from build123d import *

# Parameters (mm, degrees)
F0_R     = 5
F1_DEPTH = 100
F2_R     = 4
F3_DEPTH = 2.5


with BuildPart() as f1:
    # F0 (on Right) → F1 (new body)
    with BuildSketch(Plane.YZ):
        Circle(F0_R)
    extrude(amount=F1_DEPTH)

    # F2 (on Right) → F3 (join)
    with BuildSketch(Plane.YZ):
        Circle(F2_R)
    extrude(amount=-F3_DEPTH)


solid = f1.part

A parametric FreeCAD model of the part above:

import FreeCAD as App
import Part
import Sketcher
from FreeCAD import Vector

doc = App.newDocument("Part")
body = doc.addObject("PartDesign::Body", "Body")

sketch1 = doc.addObject("Sketcher::SketchObject", "Sketch")
body.addObject(sketch1)
sketch1.AttachmentSupport = (doc.YZ_Plane, [""])
sketch1.MapMode = "FlatFace"
sketch1.addGeometry(Part.Circle(Vector(0, 0, 0), Vector(0, 0, 1), 5), False)
sketch1.addConstraint(Sketcher.Constraint("Coincident", 0, 3, -1, 1))
sketch1.addConstraint(Sketcher.Constraint("Diameter", 0, 10.0))
pad1 = doc.addObject("PartDesign::Pad", "Pad")
body.addObject(pad1)
pad1.Profile = sketch1
pad1.Length = 100

sketch2 = doc.addObject("Sketcher::SketchObject", "Sketch001")
body.addObject(sketch2)
sketch2.AttachmentSupport = (doc.YZ_Plane, [""])
sketch2.MapMode = "FlatFace"
sketch2.addGeometry(Part.Circle(Vector(0, 0, 0), Vector(0, 0, 1), 4), False)
sketch2.addConstraint(Sketcher.Constraint("Coincident", 0, 3, -1, 1))
sketch2.addConstraint(Sketcher.Constraint("Diameter", 0, 8.0))
pad2 = doc.addObject("PartDesign::Pad", "Pad001")
body.addObject(pad2)
pad2.Profile = sketch2
pad2.Length = 2.5
pad2.Reversed = True

doc.recompute()
